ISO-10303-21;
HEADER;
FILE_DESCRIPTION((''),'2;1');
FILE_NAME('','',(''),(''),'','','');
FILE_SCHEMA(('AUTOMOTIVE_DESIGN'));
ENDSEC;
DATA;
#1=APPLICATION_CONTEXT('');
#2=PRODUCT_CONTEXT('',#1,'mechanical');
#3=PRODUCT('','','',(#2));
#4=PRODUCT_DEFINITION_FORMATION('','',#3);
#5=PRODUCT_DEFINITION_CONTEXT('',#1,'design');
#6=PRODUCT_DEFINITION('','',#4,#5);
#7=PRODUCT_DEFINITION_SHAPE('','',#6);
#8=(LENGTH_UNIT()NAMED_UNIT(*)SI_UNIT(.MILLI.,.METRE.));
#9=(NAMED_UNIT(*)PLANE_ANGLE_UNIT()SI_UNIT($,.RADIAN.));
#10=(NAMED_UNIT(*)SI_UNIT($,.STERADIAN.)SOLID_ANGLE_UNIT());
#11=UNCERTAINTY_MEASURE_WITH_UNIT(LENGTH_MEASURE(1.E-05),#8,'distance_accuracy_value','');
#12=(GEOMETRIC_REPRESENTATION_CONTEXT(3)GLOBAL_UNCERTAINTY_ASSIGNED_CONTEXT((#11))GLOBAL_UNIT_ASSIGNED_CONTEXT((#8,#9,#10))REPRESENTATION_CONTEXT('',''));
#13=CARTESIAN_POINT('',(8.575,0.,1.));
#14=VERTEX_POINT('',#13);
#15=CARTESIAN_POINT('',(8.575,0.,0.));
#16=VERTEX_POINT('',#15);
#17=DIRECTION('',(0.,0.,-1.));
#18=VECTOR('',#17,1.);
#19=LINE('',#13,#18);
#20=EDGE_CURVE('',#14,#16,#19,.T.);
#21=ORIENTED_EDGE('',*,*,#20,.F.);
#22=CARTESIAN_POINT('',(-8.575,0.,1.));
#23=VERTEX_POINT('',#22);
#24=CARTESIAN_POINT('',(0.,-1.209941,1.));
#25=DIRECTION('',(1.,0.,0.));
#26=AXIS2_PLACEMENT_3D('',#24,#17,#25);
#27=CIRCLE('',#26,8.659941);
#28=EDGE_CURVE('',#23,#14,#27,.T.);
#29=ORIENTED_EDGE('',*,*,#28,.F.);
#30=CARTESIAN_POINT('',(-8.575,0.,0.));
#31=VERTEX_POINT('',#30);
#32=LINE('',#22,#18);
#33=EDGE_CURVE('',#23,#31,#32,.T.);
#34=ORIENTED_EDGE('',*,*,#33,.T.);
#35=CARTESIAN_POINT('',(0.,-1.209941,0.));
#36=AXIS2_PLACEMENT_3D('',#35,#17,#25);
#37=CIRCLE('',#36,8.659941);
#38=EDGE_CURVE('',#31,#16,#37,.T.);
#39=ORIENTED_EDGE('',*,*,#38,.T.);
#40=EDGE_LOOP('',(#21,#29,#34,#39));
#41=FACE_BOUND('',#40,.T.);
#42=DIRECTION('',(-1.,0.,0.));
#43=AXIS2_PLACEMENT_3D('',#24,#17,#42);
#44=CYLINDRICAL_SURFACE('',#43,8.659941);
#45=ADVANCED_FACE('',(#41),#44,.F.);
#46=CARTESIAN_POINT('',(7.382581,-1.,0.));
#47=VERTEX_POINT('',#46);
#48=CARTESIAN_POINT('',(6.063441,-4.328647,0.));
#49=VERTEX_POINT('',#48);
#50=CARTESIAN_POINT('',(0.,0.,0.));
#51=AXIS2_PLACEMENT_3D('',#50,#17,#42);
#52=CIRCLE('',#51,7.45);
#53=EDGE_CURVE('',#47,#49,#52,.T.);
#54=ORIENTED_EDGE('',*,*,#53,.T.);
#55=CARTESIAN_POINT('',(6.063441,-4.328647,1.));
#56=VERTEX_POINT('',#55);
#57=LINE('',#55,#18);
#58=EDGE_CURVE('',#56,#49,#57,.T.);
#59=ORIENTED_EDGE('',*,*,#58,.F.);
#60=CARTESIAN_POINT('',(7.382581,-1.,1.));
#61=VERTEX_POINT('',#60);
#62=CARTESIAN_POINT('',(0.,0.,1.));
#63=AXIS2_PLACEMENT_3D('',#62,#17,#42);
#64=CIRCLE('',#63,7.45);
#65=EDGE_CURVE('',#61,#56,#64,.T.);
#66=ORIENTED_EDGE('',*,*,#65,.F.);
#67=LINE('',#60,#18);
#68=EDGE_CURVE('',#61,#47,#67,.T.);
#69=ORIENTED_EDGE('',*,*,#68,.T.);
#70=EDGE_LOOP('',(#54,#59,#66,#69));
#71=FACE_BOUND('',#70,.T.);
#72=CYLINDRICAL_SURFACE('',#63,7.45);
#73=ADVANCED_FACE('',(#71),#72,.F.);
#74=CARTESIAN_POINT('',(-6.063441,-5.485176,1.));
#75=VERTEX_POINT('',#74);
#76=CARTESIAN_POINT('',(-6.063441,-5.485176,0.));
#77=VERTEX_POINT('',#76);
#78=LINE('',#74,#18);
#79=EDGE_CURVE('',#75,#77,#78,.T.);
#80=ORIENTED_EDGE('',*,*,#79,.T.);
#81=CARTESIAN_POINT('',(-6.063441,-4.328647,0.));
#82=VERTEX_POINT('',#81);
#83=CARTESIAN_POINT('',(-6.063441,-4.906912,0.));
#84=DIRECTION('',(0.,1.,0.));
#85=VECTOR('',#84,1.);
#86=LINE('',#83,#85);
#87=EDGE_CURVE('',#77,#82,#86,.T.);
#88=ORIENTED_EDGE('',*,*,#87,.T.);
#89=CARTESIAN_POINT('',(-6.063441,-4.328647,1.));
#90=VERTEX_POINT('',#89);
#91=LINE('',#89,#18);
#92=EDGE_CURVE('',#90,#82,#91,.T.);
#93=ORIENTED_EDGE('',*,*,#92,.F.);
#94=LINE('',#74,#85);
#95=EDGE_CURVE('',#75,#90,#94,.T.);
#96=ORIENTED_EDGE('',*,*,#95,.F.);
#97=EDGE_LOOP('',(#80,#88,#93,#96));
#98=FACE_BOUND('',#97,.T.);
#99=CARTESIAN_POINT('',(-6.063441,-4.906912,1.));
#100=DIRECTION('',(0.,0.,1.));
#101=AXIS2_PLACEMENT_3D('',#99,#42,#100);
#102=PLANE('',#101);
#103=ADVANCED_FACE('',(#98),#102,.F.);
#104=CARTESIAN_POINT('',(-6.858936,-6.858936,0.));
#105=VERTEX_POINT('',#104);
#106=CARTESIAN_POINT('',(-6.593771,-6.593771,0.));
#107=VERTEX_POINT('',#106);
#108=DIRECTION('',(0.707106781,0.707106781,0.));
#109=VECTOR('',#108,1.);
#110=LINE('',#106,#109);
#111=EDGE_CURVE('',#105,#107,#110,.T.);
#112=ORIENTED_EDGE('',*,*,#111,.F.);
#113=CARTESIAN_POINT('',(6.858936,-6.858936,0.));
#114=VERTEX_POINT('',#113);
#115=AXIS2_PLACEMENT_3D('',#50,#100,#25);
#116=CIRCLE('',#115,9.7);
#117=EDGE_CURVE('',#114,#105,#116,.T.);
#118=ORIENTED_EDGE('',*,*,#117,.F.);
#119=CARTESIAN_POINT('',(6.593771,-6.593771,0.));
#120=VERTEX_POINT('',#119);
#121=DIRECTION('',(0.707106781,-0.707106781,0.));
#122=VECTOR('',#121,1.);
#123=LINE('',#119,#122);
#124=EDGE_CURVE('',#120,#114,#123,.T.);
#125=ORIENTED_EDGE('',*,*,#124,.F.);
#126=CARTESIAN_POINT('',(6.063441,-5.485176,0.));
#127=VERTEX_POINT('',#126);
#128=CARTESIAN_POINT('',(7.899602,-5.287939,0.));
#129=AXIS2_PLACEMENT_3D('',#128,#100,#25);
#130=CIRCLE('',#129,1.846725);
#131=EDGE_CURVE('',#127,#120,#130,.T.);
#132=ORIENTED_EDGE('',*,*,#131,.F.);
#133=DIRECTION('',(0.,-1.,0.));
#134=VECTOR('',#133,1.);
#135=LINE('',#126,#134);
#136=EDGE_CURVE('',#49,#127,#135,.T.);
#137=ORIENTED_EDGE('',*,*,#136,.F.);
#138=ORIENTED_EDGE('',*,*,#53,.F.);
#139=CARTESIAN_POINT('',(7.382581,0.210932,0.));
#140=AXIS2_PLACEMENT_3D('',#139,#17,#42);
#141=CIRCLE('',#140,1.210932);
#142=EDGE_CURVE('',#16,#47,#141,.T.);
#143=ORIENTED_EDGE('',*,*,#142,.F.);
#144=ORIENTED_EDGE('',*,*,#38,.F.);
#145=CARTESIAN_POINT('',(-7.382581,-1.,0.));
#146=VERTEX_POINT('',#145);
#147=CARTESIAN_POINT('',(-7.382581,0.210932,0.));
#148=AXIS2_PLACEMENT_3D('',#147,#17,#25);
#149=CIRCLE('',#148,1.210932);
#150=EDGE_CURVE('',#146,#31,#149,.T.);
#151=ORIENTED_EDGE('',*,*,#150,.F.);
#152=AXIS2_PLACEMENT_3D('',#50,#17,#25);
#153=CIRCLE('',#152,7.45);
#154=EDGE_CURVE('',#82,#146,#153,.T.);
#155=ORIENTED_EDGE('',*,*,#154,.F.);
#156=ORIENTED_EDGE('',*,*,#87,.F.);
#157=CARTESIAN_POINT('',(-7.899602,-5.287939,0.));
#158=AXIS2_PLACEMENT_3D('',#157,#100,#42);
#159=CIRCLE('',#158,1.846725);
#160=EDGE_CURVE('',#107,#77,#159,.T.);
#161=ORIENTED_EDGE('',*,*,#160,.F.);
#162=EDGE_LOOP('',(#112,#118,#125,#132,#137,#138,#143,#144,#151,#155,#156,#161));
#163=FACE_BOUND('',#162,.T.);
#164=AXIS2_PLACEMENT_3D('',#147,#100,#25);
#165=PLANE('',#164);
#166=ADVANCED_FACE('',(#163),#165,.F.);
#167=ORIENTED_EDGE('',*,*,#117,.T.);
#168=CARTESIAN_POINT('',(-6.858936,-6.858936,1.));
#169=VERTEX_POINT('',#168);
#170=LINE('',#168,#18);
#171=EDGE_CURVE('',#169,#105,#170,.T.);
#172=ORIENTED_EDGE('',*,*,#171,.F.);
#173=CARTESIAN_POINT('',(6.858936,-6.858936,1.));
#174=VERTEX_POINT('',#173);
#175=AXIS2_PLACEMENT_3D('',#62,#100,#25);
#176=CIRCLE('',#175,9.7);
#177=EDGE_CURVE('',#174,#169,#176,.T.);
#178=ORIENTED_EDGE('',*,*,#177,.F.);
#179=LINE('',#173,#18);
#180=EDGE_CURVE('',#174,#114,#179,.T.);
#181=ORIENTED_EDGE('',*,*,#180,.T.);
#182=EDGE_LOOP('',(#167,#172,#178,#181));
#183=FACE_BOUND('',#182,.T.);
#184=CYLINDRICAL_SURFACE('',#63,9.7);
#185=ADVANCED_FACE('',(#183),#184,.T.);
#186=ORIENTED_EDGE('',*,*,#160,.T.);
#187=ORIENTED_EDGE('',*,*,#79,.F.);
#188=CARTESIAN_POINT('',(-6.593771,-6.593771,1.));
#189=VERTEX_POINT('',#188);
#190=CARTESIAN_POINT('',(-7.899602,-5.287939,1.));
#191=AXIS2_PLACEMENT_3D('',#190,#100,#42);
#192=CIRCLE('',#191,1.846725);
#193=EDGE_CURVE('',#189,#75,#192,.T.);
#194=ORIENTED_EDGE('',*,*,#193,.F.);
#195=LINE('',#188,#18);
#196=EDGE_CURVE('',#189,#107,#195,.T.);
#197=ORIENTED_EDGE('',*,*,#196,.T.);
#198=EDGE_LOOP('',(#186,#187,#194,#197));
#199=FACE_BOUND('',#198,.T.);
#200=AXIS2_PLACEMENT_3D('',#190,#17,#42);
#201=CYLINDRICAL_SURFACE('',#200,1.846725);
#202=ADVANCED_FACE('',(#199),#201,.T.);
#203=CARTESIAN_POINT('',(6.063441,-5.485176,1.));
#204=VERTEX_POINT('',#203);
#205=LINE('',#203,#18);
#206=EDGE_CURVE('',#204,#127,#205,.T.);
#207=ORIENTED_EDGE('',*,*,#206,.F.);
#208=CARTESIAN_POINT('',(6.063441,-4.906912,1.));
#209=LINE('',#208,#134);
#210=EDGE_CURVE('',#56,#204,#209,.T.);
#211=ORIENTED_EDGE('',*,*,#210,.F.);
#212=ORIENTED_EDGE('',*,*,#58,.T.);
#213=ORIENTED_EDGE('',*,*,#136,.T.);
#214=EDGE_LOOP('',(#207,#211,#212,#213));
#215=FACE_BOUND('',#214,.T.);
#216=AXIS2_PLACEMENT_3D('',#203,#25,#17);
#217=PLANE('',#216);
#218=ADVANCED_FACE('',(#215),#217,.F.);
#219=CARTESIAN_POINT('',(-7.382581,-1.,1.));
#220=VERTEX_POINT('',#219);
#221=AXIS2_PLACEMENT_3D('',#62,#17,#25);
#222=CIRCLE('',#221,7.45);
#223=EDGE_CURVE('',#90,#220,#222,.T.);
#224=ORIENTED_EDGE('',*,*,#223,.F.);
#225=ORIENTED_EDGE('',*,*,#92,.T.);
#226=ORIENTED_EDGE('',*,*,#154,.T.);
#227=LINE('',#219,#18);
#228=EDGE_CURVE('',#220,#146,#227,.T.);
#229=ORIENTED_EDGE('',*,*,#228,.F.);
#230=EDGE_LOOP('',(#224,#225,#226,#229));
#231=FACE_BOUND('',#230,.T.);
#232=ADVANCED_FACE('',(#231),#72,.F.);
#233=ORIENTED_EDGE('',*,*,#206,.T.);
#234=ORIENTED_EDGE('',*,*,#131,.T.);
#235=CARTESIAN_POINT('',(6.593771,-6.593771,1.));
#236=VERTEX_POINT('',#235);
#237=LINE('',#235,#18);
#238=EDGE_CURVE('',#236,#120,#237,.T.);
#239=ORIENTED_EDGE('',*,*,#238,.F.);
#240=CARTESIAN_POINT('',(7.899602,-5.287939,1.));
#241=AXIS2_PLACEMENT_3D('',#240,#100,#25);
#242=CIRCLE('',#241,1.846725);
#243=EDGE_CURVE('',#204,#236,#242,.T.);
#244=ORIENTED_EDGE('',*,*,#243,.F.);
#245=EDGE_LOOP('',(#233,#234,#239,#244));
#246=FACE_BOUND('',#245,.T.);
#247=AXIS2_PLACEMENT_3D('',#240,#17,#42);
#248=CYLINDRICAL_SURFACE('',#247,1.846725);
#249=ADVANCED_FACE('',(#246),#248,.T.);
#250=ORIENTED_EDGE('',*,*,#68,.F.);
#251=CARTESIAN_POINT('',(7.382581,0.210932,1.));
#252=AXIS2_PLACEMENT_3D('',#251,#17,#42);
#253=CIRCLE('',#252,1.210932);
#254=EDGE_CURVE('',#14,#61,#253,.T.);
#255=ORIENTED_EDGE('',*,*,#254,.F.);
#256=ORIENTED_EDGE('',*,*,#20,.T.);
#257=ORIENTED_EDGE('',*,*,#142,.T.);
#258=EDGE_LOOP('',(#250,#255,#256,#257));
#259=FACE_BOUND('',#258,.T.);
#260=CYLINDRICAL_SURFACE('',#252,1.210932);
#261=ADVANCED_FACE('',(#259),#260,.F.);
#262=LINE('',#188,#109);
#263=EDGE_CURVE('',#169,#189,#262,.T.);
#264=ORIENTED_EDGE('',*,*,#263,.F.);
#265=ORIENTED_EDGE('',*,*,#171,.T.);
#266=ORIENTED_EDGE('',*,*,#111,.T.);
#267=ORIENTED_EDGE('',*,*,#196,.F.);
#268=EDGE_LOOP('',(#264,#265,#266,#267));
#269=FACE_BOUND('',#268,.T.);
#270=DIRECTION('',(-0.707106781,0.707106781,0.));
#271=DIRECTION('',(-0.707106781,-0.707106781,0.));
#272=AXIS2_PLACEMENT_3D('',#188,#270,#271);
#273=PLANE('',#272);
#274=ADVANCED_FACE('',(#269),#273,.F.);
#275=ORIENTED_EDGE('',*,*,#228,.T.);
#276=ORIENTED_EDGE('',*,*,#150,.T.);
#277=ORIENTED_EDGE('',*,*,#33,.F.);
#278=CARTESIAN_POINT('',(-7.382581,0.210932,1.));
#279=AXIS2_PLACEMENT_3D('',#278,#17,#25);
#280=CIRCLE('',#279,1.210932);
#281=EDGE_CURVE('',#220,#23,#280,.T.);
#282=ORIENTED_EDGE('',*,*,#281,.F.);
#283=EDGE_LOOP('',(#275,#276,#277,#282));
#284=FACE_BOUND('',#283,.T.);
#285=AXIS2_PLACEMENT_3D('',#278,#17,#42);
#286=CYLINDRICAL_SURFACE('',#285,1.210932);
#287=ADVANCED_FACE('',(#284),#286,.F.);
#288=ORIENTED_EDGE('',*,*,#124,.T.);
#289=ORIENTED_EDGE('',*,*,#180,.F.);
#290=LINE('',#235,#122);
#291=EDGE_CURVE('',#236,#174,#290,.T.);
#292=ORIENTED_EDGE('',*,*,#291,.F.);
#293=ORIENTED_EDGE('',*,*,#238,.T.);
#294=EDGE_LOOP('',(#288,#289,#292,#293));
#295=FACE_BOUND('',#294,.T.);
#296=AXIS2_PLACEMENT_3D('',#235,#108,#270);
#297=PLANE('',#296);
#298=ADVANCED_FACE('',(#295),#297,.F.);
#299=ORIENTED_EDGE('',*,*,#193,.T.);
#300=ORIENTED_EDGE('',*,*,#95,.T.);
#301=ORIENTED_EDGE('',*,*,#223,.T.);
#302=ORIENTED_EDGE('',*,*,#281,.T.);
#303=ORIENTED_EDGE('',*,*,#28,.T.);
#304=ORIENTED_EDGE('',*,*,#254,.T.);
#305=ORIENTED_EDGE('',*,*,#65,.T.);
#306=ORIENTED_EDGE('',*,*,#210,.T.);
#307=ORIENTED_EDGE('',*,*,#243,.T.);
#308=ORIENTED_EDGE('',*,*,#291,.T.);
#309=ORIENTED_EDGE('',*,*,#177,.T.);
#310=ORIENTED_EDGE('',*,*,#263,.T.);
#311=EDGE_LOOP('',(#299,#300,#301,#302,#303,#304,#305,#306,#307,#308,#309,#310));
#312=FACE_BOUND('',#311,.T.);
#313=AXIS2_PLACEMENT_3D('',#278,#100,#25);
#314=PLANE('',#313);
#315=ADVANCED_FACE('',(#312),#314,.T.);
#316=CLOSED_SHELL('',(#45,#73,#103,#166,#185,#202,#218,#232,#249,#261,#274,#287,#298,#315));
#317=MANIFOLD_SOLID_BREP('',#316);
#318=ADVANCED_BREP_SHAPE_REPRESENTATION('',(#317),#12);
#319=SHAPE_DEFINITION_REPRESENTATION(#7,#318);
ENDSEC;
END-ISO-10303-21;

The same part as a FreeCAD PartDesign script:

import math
import FreeCAD as App
import Part
import Sketcher

V = App.Vector
Q = App.Units.Quantity

doc = App.newDocument("Part")
body = doc.addObject("PartDesign::Body", "Body")

# Sketch on XY plane
sketch1 = doc.addObject("Sketcher::SketchObject", "Sketch")
body.addObject(sketch1)
sketch1.AttachmentSupport = (doc.XY_Plane, [""])
sketch1.MapMode = "FlatFace"
sketch1.addGeometry([
    Part.LineSegment(V(-6.06, -5.49, 0), V(-6.06, -4.33, 0)),  # 0
    Part.ArcOfCircle(Part.Circle(V(0, 0, 0), V(0, 0, 1), 7.45), math.radians(-172), math.radians(-144)),  # 1
    Part.ArcOfCircle(Part.Circle(V(-7.38, 0.21, 0), V(0, 0, 1), 1.21), math.radians(-170), math.radians(-90)),  # 2
    Part.ArcOfCircle(Part.Circle(V(0, -1.21, 0), V(0, 0, 1), 8.66), math.radians(8), math.radians(172)),  # 3
    Part.ArcOfCircle(Part.Circle(V(7.38, 0.21, 0), V(0, 0, 1), 1.21), math.radians(-90), math.radians(-10)),  # 4
    Part.ArcOfCircle(Part.Circle(V(0, 0, 0), V(0, 0, 1), 7.45), math.radians(-36), math.radians(-8)),  # 5
    Part.LineSegment(V(6.06, -4.33, 0), V(6.06, -5.49, 0)),  # 6
    Part.ArcOfCircle(Part.Circle(V(7.9, -5.29, 0), V(0, 0, 1), 1.85), math.radians(-174), math.radians(-135)),  # 7
    Part.LineSegment(V(6.59, -6.59, 0), V(6.86, -6.86, 0)),  # 8
    Part.ArcOfCircle(Part.Circle(V(0, 0, 0), V(0, 0, 1), 9.7), math.radians(-45), math.radians(225)),  # 9
    Part.LineSegment(V(-6.86, -6.86, 0), V(-6.59, -6.59, 0)),  # 10
    Part.ArcOfCircle(Part.Circle(V(-7.9, -5.29, 0), V(0, 0, 1), 1.85), math.radians(-45), math.radians(-6)),  # 11
], False)
sketch1.addConstraint([
    Sketcher.Constraint("Coincident", 0, 2, 1, 2),
    Sketcher.Constraint("Coincident", 1, 1, 2, 2),
    Sketcher.Constraint("Coincident", 2, 1, 3, 2),
    Sketcher.Constraint("Coincident", 3, 1, 4, 2),
    Sketcher.Constraint("Coincident", 4, 1, 5, 2),
    Sketcher.Constraint("Coincident", 5, 1, 6, 1),
    Sketcher.Constraint("Coincident", 6, 2, 7, 1),
    Sketcher.Constraint("Tangent", 7, 2, 8, 1),
    Sketcher.Constraint("Coincident", 8, 2, 9, 1),
    Sketcher.Constraint("Coincident", 9, 2, 10, 1),
    Sketcher.Constraint("Tangent", 10, 2, 11, 1),
    Sketcher.Constraint("Coincident", 11, 2, 0, 1),
    Sketcher.Constraint("Vertical", 0),
    Sketcher.Constraint("Vertical", 6),
    Sketcher.Constraint("Coincident", 1, 3, -1, 1),
    Sketcher.Constraint("Coincident", 5, 3, -1, 1),
    Sketcher.Constraint("Coincident", 9, 3, -1, 1),
    Sketcher.Constraint("Equal", 2, 4),
    Sketcher.Constraint("Equal", 1, 5),
    Sketcher.Constraint("Equal", 7, 11),
    Sketcher.Constraint("Symmetric", 2, 1, 3, 1, -1, 1),
    Sketcher.Constraint("Symmetric", 2, 3, 4, 3, -2),
    Sketcher.Constraint("Symmetric", 7, 3, 11, 3, -2),
    Sketcher.Constraint("Perpendicular", 8, 10),
    Sketcher.Constraint("Horizontal", 0, 2, 5, 1),
    Sketcher.Constraint("Horizontal", 8, 2, 9, 2),
    Sketcher.Constraint("Vertical", 2, 3, 1, 1),
    Sketcher.Constraint("Radius", 9, Q("9.7 mm")),
    Sketcher.Constraint("Radius", 1, Q("7.45 mm")),
    Sketcher.Constraint("DistanceY", 1, 1, -1, 1, Q("1 mm")),
    Sketcher.Constraint("Radius", 2, Q("1.210932 mm")),
    Sketcher.Constraint("Radius", 3, Q("8.659941 mm")),
    Sketcher.Constraint("Distance", 8, Q("0.375 mm")),
    Sketcher.Constraint("Radius", 7, Q("1.846725 mm")),
    Sketcher.Constraint("DistanceY", 0, 1, 0, 2, Q("1.156529 mm")),
    Sketcher.Constraint("DistanceY", 7, 3, -1, 1, Q("5.287939 mm")),
])
pad1 = doc.addObject("PartDesign::Pad", "Pad")
body.addObject(pad1)
pad1.Profile = sketch1
pad1.Length = 1

doc.recompute()
